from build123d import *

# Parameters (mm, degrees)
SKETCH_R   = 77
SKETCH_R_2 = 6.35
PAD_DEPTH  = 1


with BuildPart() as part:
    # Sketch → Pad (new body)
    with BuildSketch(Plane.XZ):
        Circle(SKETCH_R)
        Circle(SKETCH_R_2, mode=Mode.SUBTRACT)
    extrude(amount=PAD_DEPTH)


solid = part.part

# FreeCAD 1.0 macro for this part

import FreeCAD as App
import Part
import Sketcher

doc = App.newDocument("Part")
body = doc.addObject("PartDesign::Body", "Body")

sketch1 = body.newObject("Sketcher::SketchObject", "Sketch")
sketch1.AttachmentSupport = (doc.getObject("XZ_Plane"), [""])
sketch1.MapMode = "FlatFace"
sketch1.addGeometry(Part.Circle(App.Vector(0, 0, 0), App.Vector(0, 0, 1), 77), False)
sketch1.addGeometry(Part.Circle(App.Vector(0, 0, 0), App.Vector(0, 0, 1), 6), False)
sketch1.addConstraint(Sketcher.Constraint("Coincident", 0, 3, -1, 1))
sketch1.addConstraint(Sketcher.Constraint("Coincident", 1, 3, -1, 1))
sketch1.addConstraint(Sketcher.Constraint("Diameter", 0, 154.0))
sketch1.addConstraint(Sketcher.Constraint("Diameter", 1, 12.7))
pad1 = body.newObject("PartDesign::Pad", "Pad")
pad1.Profile = sketch1
pad1.Length = 1

doc.recompute()
